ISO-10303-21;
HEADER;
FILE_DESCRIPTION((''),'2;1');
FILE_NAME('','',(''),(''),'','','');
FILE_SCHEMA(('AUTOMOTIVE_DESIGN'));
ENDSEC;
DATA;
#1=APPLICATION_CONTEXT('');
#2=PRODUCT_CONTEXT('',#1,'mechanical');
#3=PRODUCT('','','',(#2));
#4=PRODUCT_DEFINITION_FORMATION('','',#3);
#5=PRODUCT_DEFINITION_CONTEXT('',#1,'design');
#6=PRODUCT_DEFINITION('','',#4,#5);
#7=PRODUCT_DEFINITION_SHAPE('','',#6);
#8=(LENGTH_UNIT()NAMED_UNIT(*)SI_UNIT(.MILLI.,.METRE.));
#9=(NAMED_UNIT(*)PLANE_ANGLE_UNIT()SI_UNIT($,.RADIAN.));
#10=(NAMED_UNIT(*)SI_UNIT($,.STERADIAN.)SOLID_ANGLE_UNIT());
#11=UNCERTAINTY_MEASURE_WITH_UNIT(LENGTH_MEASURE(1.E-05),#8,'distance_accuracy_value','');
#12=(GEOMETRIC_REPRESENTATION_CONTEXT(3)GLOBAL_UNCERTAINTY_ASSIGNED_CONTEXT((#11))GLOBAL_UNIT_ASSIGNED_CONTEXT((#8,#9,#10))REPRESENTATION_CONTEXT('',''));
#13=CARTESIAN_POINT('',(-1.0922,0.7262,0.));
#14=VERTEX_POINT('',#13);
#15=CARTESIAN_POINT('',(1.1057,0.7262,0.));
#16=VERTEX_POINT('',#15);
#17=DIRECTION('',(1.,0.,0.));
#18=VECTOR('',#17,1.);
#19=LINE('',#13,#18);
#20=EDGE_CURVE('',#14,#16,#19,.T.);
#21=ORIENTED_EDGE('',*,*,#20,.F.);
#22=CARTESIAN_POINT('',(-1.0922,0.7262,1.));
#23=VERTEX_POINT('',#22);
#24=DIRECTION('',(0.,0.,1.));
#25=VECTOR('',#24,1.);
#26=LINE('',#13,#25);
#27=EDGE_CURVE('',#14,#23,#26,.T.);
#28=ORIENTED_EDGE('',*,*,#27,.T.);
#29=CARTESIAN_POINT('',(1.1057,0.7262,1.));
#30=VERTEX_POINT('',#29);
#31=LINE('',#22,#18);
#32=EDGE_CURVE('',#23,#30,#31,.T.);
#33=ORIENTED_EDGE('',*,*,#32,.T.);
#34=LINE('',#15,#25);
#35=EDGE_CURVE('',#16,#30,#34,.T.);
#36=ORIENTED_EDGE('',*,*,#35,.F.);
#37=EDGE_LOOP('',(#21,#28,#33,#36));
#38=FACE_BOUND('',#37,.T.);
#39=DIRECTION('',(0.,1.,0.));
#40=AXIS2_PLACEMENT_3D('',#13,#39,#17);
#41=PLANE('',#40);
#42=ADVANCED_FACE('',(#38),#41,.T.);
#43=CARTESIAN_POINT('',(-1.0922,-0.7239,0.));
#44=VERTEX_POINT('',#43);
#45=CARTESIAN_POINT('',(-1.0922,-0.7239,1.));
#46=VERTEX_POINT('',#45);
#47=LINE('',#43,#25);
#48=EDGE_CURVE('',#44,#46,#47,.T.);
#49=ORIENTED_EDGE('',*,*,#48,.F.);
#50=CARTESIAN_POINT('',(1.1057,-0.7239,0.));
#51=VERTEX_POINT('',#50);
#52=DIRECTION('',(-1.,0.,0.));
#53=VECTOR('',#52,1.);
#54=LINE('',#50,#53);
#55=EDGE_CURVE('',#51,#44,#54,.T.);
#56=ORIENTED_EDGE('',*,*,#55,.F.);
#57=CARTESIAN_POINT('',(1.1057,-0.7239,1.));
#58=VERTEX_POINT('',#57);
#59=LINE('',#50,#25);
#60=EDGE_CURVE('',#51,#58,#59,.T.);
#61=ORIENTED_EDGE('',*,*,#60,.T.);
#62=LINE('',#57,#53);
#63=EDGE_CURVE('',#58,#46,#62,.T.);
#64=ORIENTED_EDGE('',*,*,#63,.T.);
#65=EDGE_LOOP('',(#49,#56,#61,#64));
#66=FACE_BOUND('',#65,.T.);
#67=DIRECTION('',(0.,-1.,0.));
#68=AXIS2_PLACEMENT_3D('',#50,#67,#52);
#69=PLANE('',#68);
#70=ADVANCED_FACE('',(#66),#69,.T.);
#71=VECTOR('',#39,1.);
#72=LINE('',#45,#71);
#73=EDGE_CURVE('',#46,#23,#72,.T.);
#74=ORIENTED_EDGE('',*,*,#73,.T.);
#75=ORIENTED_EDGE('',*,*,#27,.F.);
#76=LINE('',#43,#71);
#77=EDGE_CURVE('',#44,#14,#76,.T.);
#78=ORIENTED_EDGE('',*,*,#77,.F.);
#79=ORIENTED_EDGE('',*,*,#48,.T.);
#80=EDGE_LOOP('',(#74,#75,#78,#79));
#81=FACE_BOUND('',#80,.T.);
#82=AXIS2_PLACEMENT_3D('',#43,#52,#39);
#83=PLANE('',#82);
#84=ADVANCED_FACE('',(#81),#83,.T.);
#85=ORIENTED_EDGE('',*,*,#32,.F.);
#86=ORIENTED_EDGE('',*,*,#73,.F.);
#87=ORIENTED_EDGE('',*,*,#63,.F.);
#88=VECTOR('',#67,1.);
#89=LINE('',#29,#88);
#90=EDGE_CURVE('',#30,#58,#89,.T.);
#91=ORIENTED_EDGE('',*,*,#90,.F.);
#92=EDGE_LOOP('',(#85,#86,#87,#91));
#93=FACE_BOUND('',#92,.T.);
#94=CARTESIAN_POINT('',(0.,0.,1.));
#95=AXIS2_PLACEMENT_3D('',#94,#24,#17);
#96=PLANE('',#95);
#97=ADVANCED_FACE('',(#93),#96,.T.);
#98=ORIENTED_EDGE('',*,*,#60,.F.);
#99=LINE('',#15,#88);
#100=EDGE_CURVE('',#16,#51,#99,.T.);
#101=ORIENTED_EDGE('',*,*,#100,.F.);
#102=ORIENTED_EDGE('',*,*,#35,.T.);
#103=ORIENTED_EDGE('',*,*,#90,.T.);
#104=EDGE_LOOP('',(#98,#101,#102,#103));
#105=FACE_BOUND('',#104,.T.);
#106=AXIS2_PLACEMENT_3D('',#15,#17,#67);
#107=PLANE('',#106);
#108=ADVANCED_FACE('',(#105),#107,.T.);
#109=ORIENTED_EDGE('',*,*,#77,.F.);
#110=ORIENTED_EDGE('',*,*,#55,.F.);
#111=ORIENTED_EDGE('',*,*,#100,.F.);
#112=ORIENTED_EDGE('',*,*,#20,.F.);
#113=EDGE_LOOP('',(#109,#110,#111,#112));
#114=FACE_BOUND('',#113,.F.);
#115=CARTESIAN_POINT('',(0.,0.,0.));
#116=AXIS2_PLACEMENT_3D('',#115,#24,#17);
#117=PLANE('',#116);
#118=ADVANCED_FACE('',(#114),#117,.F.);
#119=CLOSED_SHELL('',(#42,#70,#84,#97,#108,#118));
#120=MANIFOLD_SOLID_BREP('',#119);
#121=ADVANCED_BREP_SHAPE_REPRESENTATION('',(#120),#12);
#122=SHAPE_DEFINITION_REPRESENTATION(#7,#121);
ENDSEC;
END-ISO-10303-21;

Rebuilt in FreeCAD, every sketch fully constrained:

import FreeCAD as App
import Part
import Sketcher
Q = App.Units.Quantity

doc = App.newDocument("Part")
body = doc.addObject("PartDesign::Body", "Body")

sketch1 = doc.addObject("Sketcher::SketchObject", "Sketch")
body.addObject(sketch1)
sketch1.AttachmentSupport = (doc.XY_Plane, [""])
sketch1.MapMode = "FlatFace"
sketch1.addGeometry([
    Part.LineSegment(App.Vector(1.1057, 0.7262, 0), App.Vector(-1.0922, 0.7262, 0)),
    Part.LineSegment(App.Vector(-1.0922, 0.7262, 0), App.Vector(-1.0922, -0.7239, 0)),
    Part.LineSegment(App.Vector(-1.0922, -0.7239, 0), App.Vector(1.1057, -0.7239, 0)),
    Part.LineSegment(App.Vector(1.1057, -0.7239, 0), App.Vector(1.1057, 0.7262, 0)),
], False)
sketch1.addConstraint([
    Sketcher.Constraint("Coincident", 0, 2, 1, 1),
    Sketcher.Constraint("Coincident", 1, 2, 2, 1),
    Sketcher.Constraint("Coincident", 2, 2, 3, 1),
    Sketcher.Constraint("Coincident", 3, 2, 0, 1),
    Sketcher.Constraint("Horizontal", 0),
    Sketcher.Constraint("Vertical", 1),
    Sketcher.Constraint("Horizontal", 2),
    Sketcher.Constraint("Vertical", 3),
    Sketcher.Constraint("DistanceY", 1, 2, 1, 1, Q("1.45 mm")),
    Sketcher.Constraint("DistanceX", 0, 2, 0, 1, Q("2.198 mm")),
    Sketcher.Constraint("DistanceY", 1, 2, -1, 1, Q("0.724 mm")),
    Sketcher.Constraint("DistanceX", 0, 2, -1, 1, Q("1.0922 mm")),
])
pad1 = doc.addObject("PartDesign::Pad", "Pad")
body.addObject(pad1)
pad1.Profile = sketch1
pad1.Length = 1

doc.recompute()
